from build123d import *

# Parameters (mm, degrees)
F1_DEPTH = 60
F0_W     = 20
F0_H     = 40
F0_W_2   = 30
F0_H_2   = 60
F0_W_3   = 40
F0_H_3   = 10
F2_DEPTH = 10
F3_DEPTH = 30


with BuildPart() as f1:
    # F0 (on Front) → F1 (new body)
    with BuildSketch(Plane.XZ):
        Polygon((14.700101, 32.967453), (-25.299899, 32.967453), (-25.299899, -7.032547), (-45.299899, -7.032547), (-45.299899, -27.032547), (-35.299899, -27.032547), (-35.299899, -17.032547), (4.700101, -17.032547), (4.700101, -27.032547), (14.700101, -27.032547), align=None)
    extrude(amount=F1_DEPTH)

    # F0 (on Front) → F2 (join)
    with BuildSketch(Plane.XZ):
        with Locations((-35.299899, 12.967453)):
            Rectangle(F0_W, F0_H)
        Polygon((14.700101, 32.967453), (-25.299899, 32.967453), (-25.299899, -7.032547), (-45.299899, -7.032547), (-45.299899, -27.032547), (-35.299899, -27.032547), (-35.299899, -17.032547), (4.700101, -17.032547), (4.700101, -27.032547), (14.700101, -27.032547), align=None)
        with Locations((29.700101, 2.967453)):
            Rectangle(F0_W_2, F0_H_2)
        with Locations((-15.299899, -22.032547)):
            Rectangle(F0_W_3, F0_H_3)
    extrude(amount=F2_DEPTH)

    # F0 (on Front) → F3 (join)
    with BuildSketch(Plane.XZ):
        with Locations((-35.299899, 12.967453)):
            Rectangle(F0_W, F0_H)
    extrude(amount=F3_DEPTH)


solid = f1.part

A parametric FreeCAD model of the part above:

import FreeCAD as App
import Part
import Sketcher
from FreeCAD import Vector
Q = App.Units.Quantity

doc = App.newDocument("Part")
body = doc.addObject("PartDesign::Body", "Body")

sketch1 = body.newObject("Sketcher::SketchObject", "Sketch")
sketch1.AttachmentSupport = (doc.getObject("XZ_Plane"), [""])
sketch1.MapMode = "FlatFace"
sketch1.addGeometry([
    Part.LineSegment(Vector(15, 33, 0), Vector(-25, 33, 0)),
    Part.LineSegment(Vector(-25, 33, 0), Vector(-25, -7, 0)),
    Part.LineSegment(Vector(-25, -7, 0), Vector(-45, -7, 0)),
    Part.LineSegment(Vector(-45, -7, 0), Vector(-45, -27, 0)),
    Part.LineSegment(Vector(-45, -27, 0), Vector(-35, -27, 0)),
    Part.LineSegment(Vector(-35, -27, 0), Vector(-35, -17, 0)),
    Part.LineSegment(Vector(-35, -17, 0), Vector(5, -17, 0)),
    Part.LineSegment(Vector(5, -17, 0), Vector(5, -27, 0)),
    Part.LineSegment(Vector(5, -27, 0), Vector(15, -27, 0)),
    Part.LineSegment(Vector(15, -27, 0), Vector(15, 33, 0)),
], False)
sketch1.addConstraint([
    Sketcher.Constraint("Coincident", 0, 2, 1, 1),
    Sketcher.Constraint("Coincident", 1, 2, 2, 1),
    Sketcher.Constraint("Coincident", 2, 2, 3, 1),
    Sketcher.Constraint("Coincident", 3, 2, 4, 1),
    Sketcher.Constraint("Coincident", 4, 2, 5, 1),
    Sketcher.Constraint("Coincident", 5, 2, 6, 1),
    Sketcher.Constraint("Coincident", 6, 2, 7, 1),
    Sketcher.Constraint("Coincident", 7, 2, 8, 1),
    Sketcher.Constraint("Coincident", 8, 2, 9, 1),
    Sketcher.Constraint("Coincident", 9, 2, 0, 1),
    Sketcher.Constraint("Horizontal", 0),
    Sketcher.Constraint("Vertical", 1),
    Sketcher.Constraint("Horizontal", 2),
    Sketcher.Constraint("Vertical", 3),
    Sketcher.Constraint("Horizontal", 4),
    Sketcher.Constraint("Vertical", 5),
    Sketcher.Constraint("Horizontal", 6),
    Sketcher.Constraint("Vertical", 7),
    Sketcher.Constraint("Horizontal", 8),
    Sketcher.Constraint("Vertical", 9),
    Sketcher.Constraint("Horizontal", 4, 2, 7, 2),
    Sketcher.Constraint("Equal", 0, 6),
    Sketcher.Constraint("Equal", 4, 8),
    Sketcher.Constraint("Equal", 6, 1),
    Sketcher.Constraint("Equal", 2, 3),
    Sketcher.Constraint("Equal", 8, 5),
    Sketcher.Constraint("DistanceX", 0, 2, 0, 1, Q("40 mm")),
    Sketcher.Constraint("DistanceX", 2, 2, 2, 1, Q("20 mm")),
    Sketcher.Constraint("DistanceX", 0, 2, -1, 1, Q("25.299899 mm")),
    Sketcher.Constraint("DistanceY", -1, 1, 0, 2, Q("32.967453 mm")),
])
pad1 = body.newObject("PartDesign::Pad", "Pad")
pad1.Profile = sketch1
pad1.Length = 60

sketch2 = body.newObject("Sketcher::SketchObject", "Sketch001")
sketch2.AttachmentSupport = (doc.getObject("XZ_Plane"), [""])
sketch2.MapMode = "FlatFace"
sketch2.addGeometry([
    Part.LineSegment(Vector(-45, 33, 0), Vector(-45, -27, 0)),
    Part.LineSegment(Vector(-45, -27, 0), Vector(45, -27, 0)),
    Part.LineSegment(Vector(45, -27, 0), Vector(45, 33, 0)),
    Part.LineSegment(Vector(45, 33, 0), Vector(-45, 33, 0)),
], False)
sketch2.addConstraint([
    Sketcher.Constraint("Coincident", 0, 2, 1, 1),
    Sketcher.Constraint("Coincident", 1, 2, 2, 1),
    Sketcher.Constraint("Coincident", 2, 2, 3, 1),
    Sketcher.Constraint("Coincident", 3, 2, 0, 1),
    Sketcher.Constraint("Vertical", 0),
    Sketcher.Constraint("Horizontal", 1),
    Sketcher.Constraint("Vertical", 2),
    Sketcher.Constraint("Horizontal", 3),
    Sketcher.Constraint("DistanceX", 1, 1, 1, 2, Q("90 mm")),
    Sketcher.Constraint("DistanceY", 0, 2, 0, 1, Q("60 mm")),
    Sketcher.Constraint("DistanceX", 0, 2, -1, 1, Q("45.299899 mm")),
    Sketcher.Constraint("DistanceY", 0, 2, -1, 1, Q("27.032547 mm")),
])
pad2 = body.newObject("PartDesign::Pad", "Pad001")
pad2.Profile = sketch2
pad2.Length = 10

sketch3 = body.newObject("Sketcher::SketchObject", "Sketch002")
sketch3.AttachmentSupport = (doc.getObject("XZ_Plane"), [""])
sketch3.MapMode = "FlatFace"
sketch3.addGeometry([
    Part.LineSegment(Vector(-45, 33, 0), Vector(-45, -7, 0)),
    Part.LineSegment(Vector(-45, -7, 0), Vector(-25, -7, 0)),
    Part.LineSegment(Vector(-25, -7, 0), Vector(-25, 33, 0)),
    Part.LineSegment(Vector(-25, 33, 0), Vector(-45, 33, 0)),
], False)
sketch3.addConstraint([
    Sketcher.Constraint("Coincident", 0, 2, 1, 1),
    Sketcher.Constraint("Coincident", 1, 2, 2, 1),
    Sketcher.Constraint("Coincident", 2, 2, 3, 1),
    Sketcher.Constraint("Coincident", 3, 2, 0, 1),
    Sketcher.Constraint("Vertical", 0),
    Sketcher.Constraint("Horizontal", 1),
    Sketcher.Constraint("Vertical", 2),
    Sketcher.Constraint("Horizontal", 3),
    Sketcher.Constraint("DistanceX", 1, 1, 1, 2, Q("20 mm")),
    Sketcher.Constraint("DistanceY", 0, 2, 0, 1, Q("40 mm")),
    Sketcher.Constraint("DistanceX", 0, 2, -1, 1, Q("45.299899 mm")),
    Sketcher.Constraint("DistanceY", 0, 2, -1, 1, Q("7.032547 mm")),
])
pad3 = body.newObject("PartDesign::Pad", "Pad002")
pad3.Profile = sketch3
pad3.Length = 30

doc.recompute()
